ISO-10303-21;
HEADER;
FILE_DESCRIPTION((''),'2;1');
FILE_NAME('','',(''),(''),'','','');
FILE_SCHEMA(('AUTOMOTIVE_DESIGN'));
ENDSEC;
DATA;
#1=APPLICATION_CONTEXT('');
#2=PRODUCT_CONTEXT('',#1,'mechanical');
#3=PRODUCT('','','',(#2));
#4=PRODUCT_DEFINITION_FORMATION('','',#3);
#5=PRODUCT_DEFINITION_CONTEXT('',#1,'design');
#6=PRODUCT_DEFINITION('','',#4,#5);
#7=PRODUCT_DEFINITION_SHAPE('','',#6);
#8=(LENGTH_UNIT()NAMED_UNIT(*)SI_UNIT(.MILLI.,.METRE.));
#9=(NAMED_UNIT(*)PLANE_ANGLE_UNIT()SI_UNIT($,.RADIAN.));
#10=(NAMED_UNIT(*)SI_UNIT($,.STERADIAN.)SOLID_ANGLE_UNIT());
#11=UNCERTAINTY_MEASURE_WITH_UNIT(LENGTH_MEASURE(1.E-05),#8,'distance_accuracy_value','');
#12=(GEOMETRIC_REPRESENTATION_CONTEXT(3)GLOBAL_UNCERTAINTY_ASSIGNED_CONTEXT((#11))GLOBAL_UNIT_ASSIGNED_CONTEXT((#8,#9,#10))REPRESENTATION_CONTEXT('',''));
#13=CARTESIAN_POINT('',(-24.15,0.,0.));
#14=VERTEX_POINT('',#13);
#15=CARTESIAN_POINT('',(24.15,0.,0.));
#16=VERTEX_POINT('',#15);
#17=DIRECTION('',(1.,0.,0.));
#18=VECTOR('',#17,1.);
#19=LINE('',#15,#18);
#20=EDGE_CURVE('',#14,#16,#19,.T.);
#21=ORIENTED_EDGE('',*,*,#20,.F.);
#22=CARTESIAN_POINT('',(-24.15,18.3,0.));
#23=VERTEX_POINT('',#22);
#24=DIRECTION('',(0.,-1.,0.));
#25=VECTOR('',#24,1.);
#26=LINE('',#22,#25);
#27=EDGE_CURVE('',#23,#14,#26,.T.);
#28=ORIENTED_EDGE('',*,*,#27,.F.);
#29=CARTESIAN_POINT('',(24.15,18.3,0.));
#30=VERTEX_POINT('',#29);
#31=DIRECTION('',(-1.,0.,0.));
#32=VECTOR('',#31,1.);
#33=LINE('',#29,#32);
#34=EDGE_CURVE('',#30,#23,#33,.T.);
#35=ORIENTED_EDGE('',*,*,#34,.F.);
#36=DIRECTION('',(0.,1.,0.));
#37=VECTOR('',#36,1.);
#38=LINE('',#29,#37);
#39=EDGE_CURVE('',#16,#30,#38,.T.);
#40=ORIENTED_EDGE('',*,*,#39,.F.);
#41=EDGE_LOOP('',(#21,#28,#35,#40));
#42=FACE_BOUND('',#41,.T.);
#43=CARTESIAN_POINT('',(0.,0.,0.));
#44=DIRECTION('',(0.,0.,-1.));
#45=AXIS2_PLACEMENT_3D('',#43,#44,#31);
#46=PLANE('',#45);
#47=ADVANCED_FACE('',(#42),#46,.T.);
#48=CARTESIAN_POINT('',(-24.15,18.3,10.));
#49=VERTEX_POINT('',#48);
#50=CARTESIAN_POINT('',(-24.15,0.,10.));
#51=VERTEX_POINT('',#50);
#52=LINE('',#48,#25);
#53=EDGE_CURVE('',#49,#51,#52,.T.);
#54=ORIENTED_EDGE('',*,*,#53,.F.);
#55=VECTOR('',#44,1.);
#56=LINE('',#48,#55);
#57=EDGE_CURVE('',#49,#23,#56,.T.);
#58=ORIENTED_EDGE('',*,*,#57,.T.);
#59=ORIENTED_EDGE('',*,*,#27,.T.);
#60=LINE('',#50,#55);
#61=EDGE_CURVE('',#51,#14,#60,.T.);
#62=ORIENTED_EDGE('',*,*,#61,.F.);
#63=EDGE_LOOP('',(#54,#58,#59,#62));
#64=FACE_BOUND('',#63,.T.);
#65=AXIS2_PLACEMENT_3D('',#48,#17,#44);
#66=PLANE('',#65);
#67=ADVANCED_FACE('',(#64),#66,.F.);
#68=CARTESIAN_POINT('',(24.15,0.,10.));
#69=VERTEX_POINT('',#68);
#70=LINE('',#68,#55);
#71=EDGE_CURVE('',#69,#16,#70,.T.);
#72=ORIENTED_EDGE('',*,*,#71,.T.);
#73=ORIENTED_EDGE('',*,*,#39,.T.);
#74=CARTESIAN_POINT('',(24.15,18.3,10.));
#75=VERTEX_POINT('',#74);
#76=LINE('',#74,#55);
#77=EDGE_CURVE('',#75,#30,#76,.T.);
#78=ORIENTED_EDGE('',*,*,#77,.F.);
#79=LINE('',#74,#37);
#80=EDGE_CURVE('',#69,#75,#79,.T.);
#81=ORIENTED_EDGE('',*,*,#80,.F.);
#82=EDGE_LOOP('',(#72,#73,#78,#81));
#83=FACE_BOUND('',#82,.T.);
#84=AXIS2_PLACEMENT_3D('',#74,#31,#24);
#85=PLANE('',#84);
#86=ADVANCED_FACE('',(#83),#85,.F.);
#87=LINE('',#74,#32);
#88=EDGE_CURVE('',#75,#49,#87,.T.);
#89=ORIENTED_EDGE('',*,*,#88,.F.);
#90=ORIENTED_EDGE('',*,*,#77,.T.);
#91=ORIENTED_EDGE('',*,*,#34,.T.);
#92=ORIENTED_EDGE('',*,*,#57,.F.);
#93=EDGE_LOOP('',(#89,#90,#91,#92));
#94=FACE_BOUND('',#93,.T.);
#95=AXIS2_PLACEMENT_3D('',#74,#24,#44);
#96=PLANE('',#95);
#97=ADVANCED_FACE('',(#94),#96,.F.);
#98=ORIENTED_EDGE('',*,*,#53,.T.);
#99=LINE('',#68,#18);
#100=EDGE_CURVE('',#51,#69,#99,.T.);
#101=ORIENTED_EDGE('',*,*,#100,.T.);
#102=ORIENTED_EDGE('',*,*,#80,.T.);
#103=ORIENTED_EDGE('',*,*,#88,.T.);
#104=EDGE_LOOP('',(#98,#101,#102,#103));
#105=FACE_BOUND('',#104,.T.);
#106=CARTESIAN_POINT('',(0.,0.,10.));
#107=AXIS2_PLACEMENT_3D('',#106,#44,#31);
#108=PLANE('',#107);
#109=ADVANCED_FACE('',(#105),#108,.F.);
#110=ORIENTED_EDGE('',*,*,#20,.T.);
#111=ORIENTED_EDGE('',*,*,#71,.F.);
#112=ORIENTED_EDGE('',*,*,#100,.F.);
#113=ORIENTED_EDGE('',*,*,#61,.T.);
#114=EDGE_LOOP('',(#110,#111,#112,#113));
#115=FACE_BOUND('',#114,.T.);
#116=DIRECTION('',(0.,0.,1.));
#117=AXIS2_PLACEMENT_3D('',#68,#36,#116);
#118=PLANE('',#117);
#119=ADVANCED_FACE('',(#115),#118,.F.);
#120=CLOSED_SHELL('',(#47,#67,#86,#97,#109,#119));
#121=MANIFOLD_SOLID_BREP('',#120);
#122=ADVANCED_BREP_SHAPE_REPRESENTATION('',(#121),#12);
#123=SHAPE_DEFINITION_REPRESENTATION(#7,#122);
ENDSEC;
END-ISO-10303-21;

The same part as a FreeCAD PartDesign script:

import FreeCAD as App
import Part
import Sketcher
Q = App.Units.Quantity

doc = App.newDocument("Part")
params = doc.addObject("Spreadsheet::Sheet", "Params")
for row, (alias, value) in enumerate([
    ("sketch1_width", "48.3 mm"),
    ("sketch1_height", "18.3 mm"),
    ("pad1_length", "10 mm"),
], start=1):
    params.set(f"A{row}", alias)
    params.set(f"B{row}", "=" + value)
    params.setAlias(f"B{row}", alias)

body = doc.addObject("PartDesign::Body", "Body")

# Sketch on XY plane
sketch1 = doc.addObject("Sketcher::SketchObject", "Sketch")
body.addObject(sketch1)
sketch1.AttachmentSupport = (doc.XY_Plane, [""])
sketch1.MapMode = "FlatFace"
sketch1.addGeometry(Part.LineSegment(App.Vector(-24.15, 18.3, 0), App.Vector(-24.15, 0, 0)), False)
sketch1.addGeometry(Part.LineSegment(App.Vector(-24.15, 0, 0), App.Vector(24.15, 0, 0)), False)
sketch1.addGeometry(Part.LineSegment(App.Vector(24.15, 0, 0), App.Vector(24.15, 18.3, 0)), False)
sketch1.addGeometry(Part.LineSegment(App.Vector(24.15, 18.3, 0), App.Vector(-24.15, 18.3, 0)), False)
sketch1.addConstraint(Sketcher.Constraint("Coincident", 0, 2, 1, 1))
sketch1.addConstraint(Sketcher.Constraint("Coincident", 1, 2, 2, 1))
sketch1.addConstraint(Sketcher.Constraint("Coincident", 2, 2, 3, 1))
sketch1.addConstraint(Sketcher.Constraint("Coincident", 3, 2, 0, 1))
sketch1.addConstraint(Sketcher.Constraint("Vertical", 0))
sketch1.addConstraint(Sketcher.Constraint("Horizontal", 1))
sketch1.addConstraint(Sketcher.Constraint("Vertical", 2))
sketch1.addConstraint(Sketcher.Constraint("Horizontal", 3))
sketch1.addConstraint(Sketcher.Constraint("Symmetric", 0, 2, 1, 2, -1, 1))
sketch1.addConstraint(Sketcher.Constraint("DistanceX", 1, 1, 1, 2, Q("48.3 mm")))
sketch1.addConstraint(Sketcher.Constraint("DistanceY", 0, 2, 0, 1, Q("18.3 mm")))
sketch1.setExpression("Constraints[9]", "Params.sketch1_width")
sketch1.setExpression("Constraints[10]", "Params.sketch1_height")
pad1 = doc.addObject("PartDesign::Pad", "Pad")
body.addObject(pad1)
pad1.Profile = sketch1
pad1.setExpression("Length", "Params.pad1_length")

doc.recompute()
